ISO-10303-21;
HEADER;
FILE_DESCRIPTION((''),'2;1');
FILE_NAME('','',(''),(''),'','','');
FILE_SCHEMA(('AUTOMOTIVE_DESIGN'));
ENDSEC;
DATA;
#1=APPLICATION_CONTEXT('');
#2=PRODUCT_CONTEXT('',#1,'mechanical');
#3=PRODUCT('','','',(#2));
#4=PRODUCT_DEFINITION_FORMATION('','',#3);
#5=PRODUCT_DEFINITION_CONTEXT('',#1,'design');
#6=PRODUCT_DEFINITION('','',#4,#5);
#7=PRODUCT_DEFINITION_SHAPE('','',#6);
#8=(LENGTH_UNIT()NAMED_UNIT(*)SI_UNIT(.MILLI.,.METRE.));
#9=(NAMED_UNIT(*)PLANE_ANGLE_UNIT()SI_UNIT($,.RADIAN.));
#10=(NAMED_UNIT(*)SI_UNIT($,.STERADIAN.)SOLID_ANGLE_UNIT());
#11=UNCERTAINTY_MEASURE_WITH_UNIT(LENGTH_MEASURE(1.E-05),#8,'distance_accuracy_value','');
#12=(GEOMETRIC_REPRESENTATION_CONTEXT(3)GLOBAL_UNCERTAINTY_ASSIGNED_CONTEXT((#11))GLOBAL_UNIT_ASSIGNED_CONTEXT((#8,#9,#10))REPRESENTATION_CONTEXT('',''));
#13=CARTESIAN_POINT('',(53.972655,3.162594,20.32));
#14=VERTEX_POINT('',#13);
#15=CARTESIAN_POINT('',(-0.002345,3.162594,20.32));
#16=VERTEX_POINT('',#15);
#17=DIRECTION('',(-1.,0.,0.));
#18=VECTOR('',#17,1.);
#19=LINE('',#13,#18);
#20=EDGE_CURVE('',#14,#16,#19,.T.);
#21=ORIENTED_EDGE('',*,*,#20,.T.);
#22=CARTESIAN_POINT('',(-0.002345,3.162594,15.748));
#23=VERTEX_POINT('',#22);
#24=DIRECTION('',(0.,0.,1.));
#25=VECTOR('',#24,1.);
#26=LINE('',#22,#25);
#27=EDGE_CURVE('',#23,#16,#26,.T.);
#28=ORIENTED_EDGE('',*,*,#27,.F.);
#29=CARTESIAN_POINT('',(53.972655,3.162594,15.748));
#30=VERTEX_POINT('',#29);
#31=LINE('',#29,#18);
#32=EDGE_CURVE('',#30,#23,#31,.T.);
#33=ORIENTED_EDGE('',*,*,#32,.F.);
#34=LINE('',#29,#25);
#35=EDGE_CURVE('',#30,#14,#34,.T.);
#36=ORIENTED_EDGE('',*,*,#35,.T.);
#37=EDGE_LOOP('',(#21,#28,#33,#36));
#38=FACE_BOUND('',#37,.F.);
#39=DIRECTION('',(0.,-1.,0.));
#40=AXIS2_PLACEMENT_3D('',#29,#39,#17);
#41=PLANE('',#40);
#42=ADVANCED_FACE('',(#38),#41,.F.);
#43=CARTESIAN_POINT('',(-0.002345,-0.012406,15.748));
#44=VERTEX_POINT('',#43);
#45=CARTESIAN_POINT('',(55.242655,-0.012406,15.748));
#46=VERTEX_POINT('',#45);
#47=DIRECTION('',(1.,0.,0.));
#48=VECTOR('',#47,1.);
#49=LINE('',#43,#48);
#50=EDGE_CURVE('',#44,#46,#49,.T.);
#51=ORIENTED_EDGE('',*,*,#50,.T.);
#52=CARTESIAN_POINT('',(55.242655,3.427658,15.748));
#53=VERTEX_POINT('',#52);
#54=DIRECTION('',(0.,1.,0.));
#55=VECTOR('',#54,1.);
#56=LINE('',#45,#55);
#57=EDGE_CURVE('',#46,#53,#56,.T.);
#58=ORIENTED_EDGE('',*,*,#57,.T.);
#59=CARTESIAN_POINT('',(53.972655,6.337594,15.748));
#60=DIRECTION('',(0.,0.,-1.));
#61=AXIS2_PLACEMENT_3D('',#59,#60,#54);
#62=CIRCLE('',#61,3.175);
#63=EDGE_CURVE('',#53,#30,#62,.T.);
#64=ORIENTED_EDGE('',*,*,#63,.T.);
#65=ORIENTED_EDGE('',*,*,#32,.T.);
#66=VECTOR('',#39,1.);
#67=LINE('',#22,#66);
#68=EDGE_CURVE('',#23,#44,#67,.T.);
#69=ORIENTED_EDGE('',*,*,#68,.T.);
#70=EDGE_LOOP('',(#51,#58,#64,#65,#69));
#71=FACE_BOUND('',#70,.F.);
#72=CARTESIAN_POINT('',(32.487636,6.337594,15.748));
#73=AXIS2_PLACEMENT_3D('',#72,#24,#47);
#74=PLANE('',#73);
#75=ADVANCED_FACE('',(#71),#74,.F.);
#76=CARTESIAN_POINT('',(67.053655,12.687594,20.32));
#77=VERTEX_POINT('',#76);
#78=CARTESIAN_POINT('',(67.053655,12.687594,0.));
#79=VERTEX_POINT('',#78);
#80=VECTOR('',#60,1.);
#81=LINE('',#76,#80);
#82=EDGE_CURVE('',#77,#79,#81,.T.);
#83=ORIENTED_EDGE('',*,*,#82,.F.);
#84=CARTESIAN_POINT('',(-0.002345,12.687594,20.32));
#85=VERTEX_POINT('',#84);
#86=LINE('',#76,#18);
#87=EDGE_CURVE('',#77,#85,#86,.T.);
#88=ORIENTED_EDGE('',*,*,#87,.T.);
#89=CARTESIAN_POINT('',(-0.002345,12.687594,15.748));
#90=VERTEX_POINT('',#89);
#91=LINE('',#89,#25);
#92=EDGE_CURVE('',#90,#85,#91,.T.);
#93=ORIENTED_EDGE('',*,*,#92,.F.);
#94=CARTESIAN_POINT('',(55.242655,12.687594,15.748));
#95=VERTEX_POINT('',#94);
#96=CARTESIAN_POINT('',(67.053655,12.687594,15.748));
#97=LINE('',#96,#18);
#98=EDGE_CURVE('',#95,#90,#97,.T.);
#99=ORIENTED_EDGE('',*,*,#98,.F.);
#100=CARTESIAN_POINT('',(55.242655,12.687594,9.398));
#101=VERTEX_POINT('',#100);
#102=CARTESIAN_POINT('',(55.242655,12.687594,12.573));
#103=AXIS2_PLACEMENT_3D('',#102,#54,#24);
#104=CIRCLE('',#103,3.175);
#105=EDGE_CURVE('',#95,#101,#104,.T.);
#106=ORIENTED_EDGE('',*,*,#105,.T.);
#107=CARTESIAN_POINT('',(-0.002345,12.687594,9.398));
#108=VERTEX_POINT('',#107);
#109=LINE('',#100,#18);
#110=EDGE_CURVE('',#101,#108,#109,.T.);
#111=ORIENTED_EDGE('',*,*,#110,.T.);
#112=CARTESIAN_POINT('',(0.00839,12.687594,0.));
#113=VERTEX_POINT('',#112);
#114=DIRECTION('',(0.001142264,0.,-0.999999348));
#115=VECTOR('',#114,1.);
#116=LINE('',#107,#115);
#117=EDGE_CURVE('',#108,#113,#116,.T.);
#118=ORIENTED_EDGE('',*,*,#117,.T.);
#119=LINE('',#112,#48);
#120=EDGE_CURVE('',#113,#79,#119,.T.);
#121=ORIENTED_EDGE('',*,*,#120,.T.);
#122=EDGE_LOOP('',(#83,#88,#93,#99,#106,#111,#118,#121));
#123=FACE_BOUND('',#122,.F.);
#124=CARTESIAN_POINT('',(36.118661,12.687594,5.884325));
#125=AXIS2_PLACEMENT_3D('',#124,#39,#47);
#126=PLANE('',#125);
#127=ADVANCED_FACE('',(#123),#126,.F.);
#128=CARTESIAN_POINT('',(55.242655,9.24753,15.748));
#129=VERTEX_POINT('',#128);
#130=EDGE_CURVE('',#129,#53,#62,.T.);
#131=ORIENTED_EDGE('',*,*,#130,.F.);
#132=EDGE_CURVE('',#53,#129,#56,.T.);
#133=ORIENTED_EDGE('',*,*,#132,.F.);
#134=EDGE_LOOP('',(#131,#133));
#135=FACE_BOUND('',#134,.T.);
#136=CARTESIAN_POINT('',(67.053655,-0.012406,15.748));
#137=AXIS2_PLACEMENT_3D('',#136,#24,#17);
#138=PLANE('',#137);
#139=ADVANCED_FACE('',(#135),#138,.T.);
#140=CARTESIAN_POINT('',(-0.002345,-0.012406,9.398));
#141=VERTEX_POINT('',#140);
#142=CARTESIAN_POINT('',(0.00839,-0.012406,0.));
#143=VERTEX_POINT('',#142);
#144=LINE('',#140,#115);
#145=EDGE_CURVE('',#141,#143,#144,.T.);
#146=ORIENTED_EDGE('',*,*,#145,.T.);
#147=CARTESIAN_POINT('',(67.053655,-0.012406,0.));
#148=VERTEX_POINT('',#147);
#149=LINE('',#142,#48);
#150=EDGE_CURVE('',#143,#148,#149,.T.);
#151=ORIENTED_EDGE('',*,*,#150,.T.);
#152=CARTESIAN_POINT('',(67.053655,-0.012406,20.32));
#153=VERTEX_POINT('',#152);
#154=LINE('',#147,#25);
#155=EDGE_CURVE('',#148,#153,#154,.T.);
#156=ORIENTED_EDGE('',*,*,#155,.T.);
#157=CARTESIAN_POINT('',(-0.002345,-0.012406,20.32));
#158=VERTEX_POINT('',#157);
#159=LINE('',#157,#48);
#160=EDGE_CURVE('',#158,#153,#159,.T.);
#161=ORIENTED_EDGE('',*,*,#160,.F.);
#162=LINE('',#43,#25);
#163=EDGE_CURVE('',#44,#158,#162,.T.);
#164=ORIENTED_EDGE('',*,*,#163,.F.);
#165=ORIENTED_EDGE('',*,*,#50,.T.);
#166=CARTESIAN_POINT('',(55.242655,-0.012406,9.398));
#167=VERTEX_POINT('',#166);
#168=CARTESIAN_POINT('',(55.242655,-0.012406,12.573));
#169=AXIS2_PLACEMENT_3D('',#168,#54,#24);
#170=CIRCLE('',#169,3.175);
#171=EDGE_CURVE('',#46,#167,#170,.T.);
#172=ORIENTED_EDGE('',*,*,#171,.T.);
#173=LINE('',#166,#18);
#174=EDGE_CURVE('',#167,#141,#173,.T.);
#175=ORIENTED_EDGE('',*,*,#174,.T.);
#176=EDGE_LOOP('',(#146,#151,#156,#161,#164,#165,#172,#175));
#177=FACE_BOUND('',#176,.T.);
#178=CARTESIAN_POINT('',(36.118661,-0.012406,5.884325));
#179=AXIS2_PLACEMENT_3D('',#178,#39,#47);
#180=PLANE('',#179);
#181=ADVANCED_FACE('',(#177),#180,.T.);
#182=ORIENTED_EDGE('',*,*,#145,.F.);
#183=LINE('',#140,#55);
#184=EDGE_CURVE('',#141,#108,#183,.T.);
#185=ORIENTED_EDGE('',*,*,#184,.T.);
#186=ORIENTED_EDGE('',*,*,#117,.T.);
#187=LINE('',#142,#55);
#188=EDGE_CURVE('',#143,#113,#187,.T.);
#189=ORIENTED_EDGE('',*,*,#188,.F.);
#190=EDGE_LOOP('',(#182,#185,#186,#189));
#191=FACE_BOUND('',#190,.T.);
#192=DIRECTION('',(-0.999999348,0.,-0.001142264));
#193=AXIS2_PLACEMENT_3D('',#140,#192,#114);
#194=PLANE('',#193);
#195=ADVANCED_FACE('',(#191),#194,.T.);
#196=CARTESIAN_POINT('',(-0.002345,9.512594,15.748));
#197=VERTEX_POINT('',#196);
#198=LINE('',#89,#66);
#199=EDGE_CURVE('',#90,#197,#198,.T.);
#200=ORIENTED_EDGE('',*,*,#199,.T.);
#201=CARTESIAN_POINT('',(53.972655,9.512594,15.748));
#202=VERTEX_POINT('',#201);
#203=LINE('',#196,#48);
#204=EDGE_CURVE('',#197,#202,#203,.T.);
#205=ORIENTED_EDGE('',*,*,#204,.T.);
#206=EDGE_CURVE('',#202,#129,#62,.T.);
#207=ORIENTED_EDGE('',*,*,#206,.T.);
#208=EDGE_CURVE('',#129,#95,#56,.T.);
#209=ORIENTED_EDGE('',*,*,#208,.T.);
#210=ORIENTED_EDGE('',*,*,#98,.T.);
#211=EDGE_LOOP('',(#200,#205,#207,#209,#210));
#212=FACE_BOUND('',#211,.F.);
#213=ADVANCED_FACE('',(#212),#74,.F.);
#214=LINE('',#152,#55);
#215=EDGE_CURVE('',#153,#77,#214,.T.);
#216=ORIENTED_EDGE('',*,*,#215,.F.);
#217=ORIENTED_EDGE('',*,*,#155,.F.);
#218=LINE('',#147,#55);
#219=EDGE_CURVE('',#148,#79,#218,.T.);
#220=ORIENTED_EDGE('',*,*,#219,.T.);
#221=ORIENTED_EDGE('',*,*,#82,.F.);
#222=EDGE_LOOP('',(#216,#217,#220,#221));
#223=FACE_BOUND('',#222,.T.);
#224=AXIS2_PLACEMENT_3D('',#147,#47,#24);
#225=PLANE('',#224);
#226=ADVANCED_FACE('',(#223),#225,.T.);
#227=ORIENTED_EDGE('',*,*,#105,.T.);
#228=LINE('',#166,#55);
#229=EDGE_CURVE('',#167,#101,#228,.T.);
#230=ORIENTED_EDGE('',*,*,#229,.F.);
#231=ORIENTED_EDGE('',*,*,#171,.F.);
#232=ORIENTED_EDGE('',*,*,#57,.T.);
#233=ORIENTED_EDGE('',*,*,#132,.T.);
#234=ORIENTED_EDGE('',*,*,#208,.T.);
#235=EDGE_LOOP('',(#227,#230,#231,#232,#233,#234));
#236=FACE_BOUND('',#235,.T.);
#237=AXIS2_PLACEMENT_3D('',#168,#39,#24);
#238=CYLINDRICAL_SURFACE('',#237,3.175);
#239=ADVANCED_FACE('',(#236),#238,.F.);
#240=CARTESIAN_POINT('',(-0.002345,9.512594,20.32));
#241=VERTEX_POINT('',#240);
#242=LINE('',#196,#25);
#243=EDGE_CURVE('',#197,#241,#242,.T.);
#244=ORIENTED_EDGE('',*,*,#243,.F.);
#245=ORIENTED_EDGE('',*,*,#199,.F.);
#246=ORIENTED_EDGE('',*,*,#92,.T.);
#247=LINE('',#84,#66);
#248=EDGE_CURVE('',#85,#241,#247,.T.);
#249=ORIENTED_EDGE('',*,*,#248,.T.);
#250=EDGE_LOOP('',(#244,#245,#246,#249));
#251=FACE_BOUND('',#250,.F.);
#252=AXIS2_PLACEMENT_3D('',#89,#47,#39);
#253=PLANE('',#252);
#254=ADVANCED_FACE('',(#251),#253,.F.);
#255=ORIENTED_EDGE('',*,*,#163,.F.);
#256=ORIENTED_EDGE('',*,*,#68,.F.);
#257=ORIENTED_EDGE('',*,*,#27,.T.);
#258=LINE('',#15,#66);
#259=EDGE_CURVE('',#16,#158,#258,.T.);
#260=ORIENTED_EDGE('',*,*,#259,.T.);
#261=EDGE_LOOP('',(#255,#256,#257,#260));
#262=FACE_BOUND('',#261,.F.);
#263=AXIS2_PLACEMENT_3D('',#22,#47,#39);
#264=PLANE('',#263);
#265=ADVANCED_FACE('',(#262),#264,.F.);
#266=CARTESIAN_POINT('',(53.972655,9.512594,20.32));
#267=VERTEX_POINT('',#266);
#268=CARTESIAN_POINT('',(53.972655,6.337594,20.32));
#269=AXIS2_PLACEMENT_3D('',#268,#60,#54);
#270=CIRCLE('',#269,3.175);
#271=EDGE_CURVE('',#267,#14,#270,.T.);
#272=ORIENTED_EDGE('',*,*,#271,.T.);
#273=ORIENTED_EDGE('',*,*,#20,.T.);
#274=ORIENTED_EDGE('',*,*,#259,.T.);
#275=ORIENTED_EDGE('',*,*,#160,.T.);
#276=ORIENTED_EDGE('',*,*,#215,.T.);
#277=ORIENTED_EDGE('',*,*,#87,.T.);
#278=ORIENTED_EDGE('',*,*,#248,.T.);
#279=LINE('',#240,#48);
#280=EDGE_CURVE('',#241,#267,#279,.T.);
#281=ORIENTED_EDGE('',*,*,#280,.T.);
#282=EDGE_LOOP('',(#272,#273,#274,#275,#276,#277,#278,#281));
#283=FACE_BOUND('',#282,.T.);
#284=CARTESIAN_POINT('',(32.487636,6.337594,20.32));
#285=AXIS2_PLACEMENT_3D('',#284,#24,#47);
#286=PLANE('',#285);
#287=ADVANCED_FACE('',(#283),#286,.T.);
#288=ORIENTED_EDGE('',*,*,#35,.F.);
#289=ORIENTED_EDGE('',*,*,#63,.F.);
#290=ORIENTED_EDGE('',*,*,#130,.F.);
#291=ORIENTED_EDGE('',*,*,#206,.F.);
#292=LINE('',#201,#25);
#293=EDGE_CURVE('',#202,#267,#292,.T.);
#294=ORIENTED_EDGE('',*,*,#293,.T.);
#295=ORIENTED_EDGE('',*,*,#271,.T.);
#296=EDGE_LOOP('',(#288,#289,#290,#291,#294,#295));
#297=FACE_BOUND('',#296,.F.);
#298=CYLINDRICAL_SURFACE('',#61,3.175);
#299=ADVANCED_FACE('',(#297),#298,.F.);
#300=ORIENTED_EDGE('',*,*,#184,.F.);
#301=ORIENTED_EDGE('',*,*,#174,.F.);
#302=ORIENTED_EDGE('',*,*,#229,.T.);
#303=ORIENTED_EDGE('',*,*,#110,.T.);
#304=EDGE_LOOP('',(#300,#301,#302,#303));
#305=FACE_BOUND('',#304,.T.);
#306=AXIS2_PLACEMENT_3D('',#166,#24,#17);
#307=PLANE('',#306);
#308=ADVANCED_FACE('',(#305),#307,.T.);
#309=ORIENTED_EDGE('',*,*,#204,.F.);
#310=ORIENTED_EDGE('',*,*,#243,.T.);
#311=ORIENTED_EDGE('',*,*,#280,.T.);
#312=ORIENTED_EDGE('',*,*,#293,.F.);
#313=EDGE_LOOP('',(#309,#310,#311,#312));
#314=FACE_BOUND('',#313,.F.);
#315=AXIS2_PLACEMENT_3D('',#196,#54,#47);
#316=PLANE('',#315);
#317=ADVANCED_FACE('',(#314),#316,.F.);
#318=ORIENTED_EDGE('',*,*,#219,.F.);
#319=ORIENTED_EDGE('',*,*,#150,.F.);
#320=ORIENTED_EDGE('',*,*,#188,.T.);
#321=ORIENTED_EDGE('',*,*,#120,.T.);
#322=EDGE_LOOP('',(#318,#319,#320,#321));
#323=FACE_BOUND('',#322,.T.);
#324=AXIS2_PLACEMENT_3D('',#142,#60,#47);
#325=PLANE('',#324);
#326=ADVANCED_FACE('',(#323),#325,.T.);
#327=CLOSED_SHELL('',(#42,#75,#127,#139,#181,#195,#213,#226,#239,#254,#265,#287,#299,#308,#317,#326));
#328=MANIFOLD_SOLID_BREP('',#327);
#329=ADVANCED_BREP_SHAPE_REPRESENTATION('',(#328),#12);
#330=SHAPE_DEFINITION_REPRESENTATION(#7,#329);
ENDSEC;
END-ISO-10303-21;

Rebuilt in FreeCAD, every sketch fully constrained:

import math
import FreeCAD as App
import Part
import Sketcher
from FreeCAD import Vector
Q = App.Units.Quantity

doc = App.newDocument("Part")
body = doc.addObject("PartDesign::Body", "Body")

# Sketch on XY plane
sketch1 = body.newObject("Sketcher::SketchObject", "Sketch")
sketch1.AttachmentSupport = (doc.getObject("XY_Plane"), [""])
sketch1.MapMode = "FlatFace"
sketch1.addGeometry(Part.LineSegment(Vector(24.1, 5.3, 0), Vector(-43, 5.3, 0)), False)
sketch1.addGeometry(Part.LineSegment(Vector(-43, 5.3, 0), Vector(-43, 2.1, 0)), False)
sketch1.addGeometry(Part.LineSegment(Vector(-43, 2.1, 0), Vector(11, 2.1, 0)), False)
sketch1.addGeometry(Part.ArcOfCircle(Part.Circle(Vector(11, -1.1, 0), Vector(0, 0, 1), 3.2), math.radians(-90), math.radians(90)), False)
sketch1.addGeometry(Part.LineSegment(Vector(11, -4.3, 0), Vector(-43, -4.3, 0)), False)
sketch1.addGeometry(Part.LineSegment(Vector(-43, -4.3, 0), Vector(-43, -7.4, 0)), False)
sketch1.addGeometry(Part.LineSegment(Vector(-43, -7.4, 0), Vector(24.1, -7.4, 0)), False)
sketch1.addGeometry(Part.LineSegment(Vector(24.1, -7.4, 0), Vector(24.1, 5.3, 0)), False)
sketch1.addConstraint(Sketcher.Constraint("Coincident", 0, 2, 1, 1))
sketch1.addConstraint(Sketcher.Constraint("Coincident", 1, 2, 2, 1))
sketch1.addConstraint(Sketcher.Constraint("Tangent", 2, 2, 3, 2))
sketch1.addConstraint(Sketcher.Constraint("Tangent", 3, 1, 4, 1))
sketch1.addConstraint(Sketcher.Constraint("Coincident", 4, 2, 5, 1))
sketch1.addConstraint(Sketcher.Constraint("Coincident", 5, 2, 6, 1))
sketch1.addConstraint(Sketcher.Constraint("Coincident", 6, 2, 7, 1))
sketch1.addConstraint(Sketcher.Constraint("Coincident", 7, 2, 0, 1))
sketch1.addConstraint(Sketcher.Constraint("Horizontal", 0))
sketch1.addConstraint(Sketcher.Constraint("Vertical", 1))
sketch1.addConstraint(Sketcher.Constraint("Horizontal", 2))
sketch1.addConstraint(Sketcher.Constraint("Horizontal", 4))
sketch1.addConstraint(Sketcher.Constraint("Vertical", 5))
sketch1.addConstraint(Sketcher.Constraint("Horizontal", 6))
sketch1.addConstraint(Sketcher.Constraint("Vertical", 7))
sketch1.addConstraint(Sketcher.Constraint("Vertical", 1, 2, 4, 2))
sketch1.addConstraint(Sketcher.Constraint("Equal", 1, 5))
sketch1.addConstraint(Sketcher.Constraint("DistanceY", 7, 1, 7, 2, Q("0.5 in")))
sketch1.addConstraint(Sketcher.Constraint("Radius", 3, Q("0.125 in")))
sketch1.addConstraint(Sketcher.Constraint("DistanceX", 0, 2, 0, 1, Q("2.64 in")))
sketch1.addConstraint(Sketcher.Constraint("DistanceX", 2, 1, 2, 2, Q("2.125 in")))
sketch1.addConstraint(Sketcher.Constraint("DistanceX", -1, 1, 3, 3, Q("10.970455 mm")))
sketch1.addConstraint(Sketcher.Constraint("DistanceY", 3, 3, -1, 1, Q("1.079206 mm")))
pad1 = body.newObject("PartDesign::Pad", "Pad")
pad1.Profile = sketch1
pad1.Length = Q("0.18 in")

# Sketch on XZ plane
sketch2 = body.newObject("Sketcher::SketchObject", "Sketch001")
sketch2.AttachmentSupport = (doc.getObject("XZ_Plane"), [""])
sketch2.MapMode = "FlatFace"
sketch2.AttachmentOffset = App.Placement(Vector(0, 0, 7.429206), App.Rotation())
sketch2.addGeometry(Part.LineSegment(Vector(24.1, 0, 0), Vector(12.2, 0, 0)), False)
sketch2.addGeometry(Part.ArcOfCircle(Part.Circle(Vector(12.2, -3.2, 0), Vector(0, 0, 1), 3.2), math.radians(-90), math.radians(90)), False)
sketch2.addGeometry(Part.LineSegment(Vector(12.2, -6.3, 0), Vector(-43, -6.3, 0)), False)
sketch2.addGeometry(Part.LineSegment(Vector(-43, -6.3, 0), Vector(-43, -15.7, 0)), False)
sketch2.addGeometry(Part.LineSegment(Vector(-43, -15.7, 0), Vector(24.1, -15.7, 0)), False)
sketch2.addGeometry(Part.LineSegment(Vector(24.1, -15.7, 0), Vector(24.1, 0, 0)), False)
sketch2.addConstraint(Sketcher.Constraint("Tangent", 0, 2, 1, 2))
sketch2.addConstraint(Sketcher.Constraint("Tangent", 1, 1, 2, 1))
sketch2.addConstraint(Sketcher.Constraint("Coincident", 2, 2, 3, 1))
sketch2.addConstraint(Sketcher.Constraint("Coincident", 3, 2, 4, 1))
sketch2.addConstraint(Sketcher.Constraint("Coincident", 4, 2, 5, 1))
sketch2.addConstraint(Sketcher.Constraint("Coincident", 5, 2, 0, 1))
sketch2.addConstraint(Sketcher.Constraint("Horizontal", 0))
sketch2.addConstraint(Sketcher.Constraint("Horizontal", 2))
sketch2.addConstraint(Sketcher.Constraint("Horizontal", 4))
sketch2.addConstraint(Sketcher.Constraint("Vertical", 5))
sketch2.addConstraint(Sketcher.Constraint("PointOnObject", 0, 2, -1))
sketch2.addConstraint(Sketcher.Constraint("Radius", 1, Q("0.125 in")))
sketch2.addConstraint(Sketcher.Constraint("DistanceY", 5, 1, 5, 2, Q("0.62 in")))
sketch2.addConstraint(Sketcher.Constraint("DistanceX", 0, 2, 0, 1, Q("0.465 in")))
sketch2.addConstraint(Sketcher.Constraint("DistanceX", 2, 2, 2, 1, Q("2.175 in")))
sketch2.addConstraint(Sketcher.Constraint("DistanceX", 4, 1, 4, 2, Q("67.045265 mm")))
sketch2.addConstraint(Sketcher.Constraint("DistanceX", 3, 2, -1, 1, Q("42.99381 mm")))
pad2 = body.newObject("PartDesign::Pad", "Pad001")
pad2.Profile = sketch2
pad2.Length = Q("0.5 in")
pad2.Reversed = True
body2 = doc.addObject("PartDesign::Body", "Body001")
doc.recompute()

body.Placement = App.Placement(Vector(43.0022, 7.4168, 15.748), App.Rotation(Vector(0, 0, 1), 0))
boolean = body2.newObject("PartDesign::Boolean", "Boolean")
boolean.Type = "Fuse"
boolean.addObjects([body])

doc.recompute()
